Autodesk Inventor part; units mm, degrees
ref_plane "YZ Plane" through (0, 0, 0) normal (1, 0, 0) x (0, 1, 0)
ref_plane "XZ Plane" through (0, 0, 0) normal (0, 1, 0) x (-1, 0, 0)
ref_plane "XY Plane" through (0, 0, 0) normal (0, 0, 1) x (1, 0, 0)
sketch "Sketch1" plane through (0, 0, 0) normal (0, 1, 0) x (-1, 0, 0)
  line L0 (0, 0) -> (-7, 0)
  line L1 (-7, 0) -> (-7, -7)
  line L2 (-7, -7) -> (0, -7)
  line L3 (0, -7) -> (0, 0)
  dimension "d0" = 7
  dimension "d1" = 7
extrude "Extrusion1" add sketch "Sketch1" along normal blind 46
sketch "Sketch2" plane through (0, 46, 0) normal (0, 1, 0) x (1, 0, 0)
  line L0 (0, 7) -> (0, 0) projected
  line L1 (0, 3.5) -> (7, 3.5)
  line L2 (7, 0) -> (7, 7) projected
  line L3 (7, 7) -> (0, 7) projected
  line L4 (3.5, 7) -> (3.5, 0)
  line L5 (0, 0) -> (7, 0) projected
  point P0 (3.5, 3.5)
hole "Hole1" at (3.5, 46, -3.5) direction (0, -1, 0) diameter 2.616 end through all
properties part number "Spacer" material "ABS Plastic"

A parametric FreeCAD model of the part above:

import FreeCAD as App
import Part
import Sketcher

V = App.Vector
Q = App.Units.Quantity


def add_polygon(sketch, points):
    """Adds a closed chain of lines whose ends are joined by coincident constraints."""
    first, n = sketch.GeometryCount, len(points)
    for a, b in zip(points, points[1:] + points[:1]):
        sketch.addGeometry(Part.LineSegment(App.Vector(*a, 0), App.Vector(*b, 0)), False)
    for i in range(n):
        sketch.addConstraint(Sketcher.Constraint("Coincident", first + i, 2, first + (i + 1) % n, 1))

doc = App.newDocument("Part")
params = doc.addObject("Spreadsheet::Sheet", "Params")
for row, (alias, value) in enumerate([
    ("sketch1_width", "7 mm"),
    ("pad1_length", "46 mm"),
    ("hole_diameter", "2.616 mm"),
], start=1):
    params.set(f"A{row}", alias)
    params.set(f"B{row}", "=" + value)
    params.setAlias(f"B{row}", alias)

body = doc.addObject("PartDesign::Body", "Body")

# Sketch on XZ plane
sketch1 = body.newObject("Sketcher::SketchObject", "Sketch")
sketch1.AttachmentSupport = (doc.getObject("XZ_Plane"), [""])
sketch1.MapMode = "FlatFace"
add_polygon(sketch1, [(0, -7), (0, 0), (7, 0), (7, -7)])  # lines 0-3
sketch1.addConstraint([
    Sketcher.Constraint("Vertical", 0),
    Sketcher.Constraint("Horizontal", 1),
    Sketcher.Constraint("Vertical", 2),
    Sketcher.Constraint("Horizontal", 3),
    Sketcher.Constraint("Coincident", 0, 2, -1, 1),
    Sketcher.Constraint("Equal", 3, 0),
    Sketcher.Constraint("DistanceX", 1, 1, 1, 2, Q("7 mm")),
])
sketch1.setExpression("Constraints[10]", "Params.sketch1_width")
pad1 = body.newObject("PartDesign::Pad", "Pad")
pad1.Profile = sketch1
pad1.setExpression("Length", "Params.pad1_length")
pad1.Reversed = True

# Sketch on XZ plane
sketch2 = body.newObject("Sketcher::SketchObject", "Sketch001")
sketch2.AttachmentSupport = (doc.getObject("XZ_Plane"), [""])
sketch2.MapMode = "FlatFace"
sketch2.AttachmentOffset = App.Placement(V(0, 0, -46), App.Rotation())
sketch2.addGeometry(Part.Circle(V(3.5, -3.5, 0), V(0, 0, 1), 1.3), False)
sketch2.addConstraint([
    Sketcher.Constraint("Diameter", 0, Q("2.616 mm")),
    Sketcher.Constraint("DistanceX", -1, 1, 0, 3, Q("3.5 mm")),
    Sketcher.Constraint("DistanceY", 0, 3, -1, 1, Q("3.5 mm")),
])
doc.recompute()
hole = body.newObject("PartDesign::Hole", "Hole")
hole.Profile = sketch2
hole.ThreadType = "None"
hole.setExpression("Diameter", "Params.hole_diameter")
hole.DepthType = "ThroughAll"
hole.Reversed = True

doc.recompute()
